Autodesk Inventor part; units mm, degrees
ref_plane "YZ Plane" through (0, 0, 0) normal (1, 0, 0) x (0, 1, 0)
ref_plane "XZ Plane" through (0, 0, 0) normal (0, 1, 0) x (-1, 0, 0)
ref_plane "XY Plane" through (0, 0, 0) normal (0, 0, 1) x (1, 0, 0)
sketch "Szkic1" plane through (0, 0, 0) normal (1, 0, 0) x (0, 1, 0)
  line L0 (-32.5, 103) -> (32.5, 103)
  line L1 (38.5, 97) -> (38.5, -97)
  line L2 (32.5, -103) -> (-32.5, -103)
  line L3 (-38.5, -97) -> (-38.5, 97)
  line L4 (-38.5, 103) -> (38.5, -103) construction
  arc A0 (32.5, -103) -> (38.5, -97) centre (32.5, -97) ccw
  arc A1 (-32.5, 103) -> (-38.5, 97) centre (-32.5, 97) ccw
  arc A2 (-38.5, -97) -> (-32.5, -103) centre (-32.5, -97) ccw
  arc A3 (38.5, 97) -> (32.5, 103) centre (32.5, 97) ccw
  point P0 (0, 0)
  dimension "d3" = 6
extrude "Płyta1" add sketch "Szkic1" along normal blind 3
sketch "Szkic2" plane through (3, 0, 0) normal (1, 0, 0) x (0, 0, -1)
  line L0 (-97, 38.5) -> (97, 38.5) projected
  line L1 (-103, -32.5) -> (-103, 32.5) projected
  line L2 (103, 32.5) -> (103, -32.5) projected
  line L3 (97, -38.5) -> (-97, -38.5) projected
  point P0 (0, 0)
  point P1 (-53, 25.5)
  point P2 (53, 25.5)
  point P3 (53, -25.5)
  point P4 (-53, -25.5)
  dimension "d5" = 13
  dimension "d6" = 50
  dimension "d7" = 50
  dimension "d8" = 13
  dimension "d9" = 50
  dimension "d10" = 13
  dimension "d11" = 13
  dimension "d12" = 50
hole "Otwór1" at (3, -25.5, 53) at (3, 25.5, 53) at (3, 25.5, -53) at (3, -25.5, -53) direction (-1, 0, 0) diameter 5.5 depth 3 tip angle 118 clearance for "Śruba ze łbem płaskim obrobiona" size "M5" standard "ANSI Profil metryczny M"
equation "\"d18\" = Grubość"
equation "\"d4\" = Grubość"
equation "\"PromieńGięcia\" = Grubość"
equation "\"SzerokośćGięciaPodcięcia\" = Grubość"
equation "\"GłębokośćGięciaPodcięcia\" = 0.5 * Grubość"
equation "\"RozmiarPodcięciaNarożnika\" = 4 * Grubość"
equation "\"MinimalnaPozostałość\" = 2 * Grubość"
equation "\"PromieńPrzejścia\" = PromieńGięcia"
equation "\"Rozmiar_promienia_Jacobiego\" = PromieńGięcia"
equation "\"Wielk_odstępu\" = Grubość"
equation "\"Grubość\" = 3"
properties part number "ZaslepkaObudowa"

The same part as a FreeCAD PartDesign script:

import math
import FreeCAD as App
import Part
import Sketcher

V = App.Vector
Q = App.Units.Quantity

doc = App.newDocument("Part")
body = doc.addObject("PartDesign::Body", "Body")

# Sketch on YZ plane
sketch1 = body.newObject("Sketcher::SketchObject", "Sketch")
sketch1.AttachmentSupport = (doc.getObject("YZ_Plane"), [""])
sketch1.MapMode = "FlatFace"
sketch1.addGeometry([
    Part.LineSegment(V(32, 103, 0), V(-32, 103, 0)),  # 0
    Part.ArcOfCircle(Part.Circle(V(-32, 97, 0), V(0, 0, 1), 6), math.radians(90), math.radians(180)),  # 1
    Part.LineSegment(V(-38, 97, 0), V(-38, -97, 0)),  # 2
    Part.ArcOfCircle(Part.Circle(V(-32, -97, 0), V(0, 0, 1), 6), math.radians(180), math.radians(270)),  # 3
    Part.LineSegment(V(-32, -103, 0), V(32, -103, 0)),  # 4
    Part.ArcOfCircle(Part.Circle(V(32, -97, 0), V(0, 0, 1), 6), math.radians(-90), math.radians(0)),  # 5
    Part.LineSegment(V(38, -97, 0), V(38, 97, 0)),  # 6
    Part.ArcOfCircle(Part.Circle(V(32, 97, 0), V(0, 0, 1), 6), math.radians(0), math.radians(90)),  # 7
], False)
sketch1.addConstraint([
    Sketcher.Constraint("Tangent", 0, 2, 1, 1),
    Sketcher.Constraint("Tangent", 1, 2, 2, 1),
    Sketcher.Constraint("Tangent", 2, 2, 3, 1),
    Sketcher.Constraint("Tangent", 3, 2, 4, 1),
    Sketcher.Constraint("Tangent", 4, 2, 5, 1),
    Sketcher.Constraint("Tangent", 5, 2, 6, 1),
    Sketcher.Constraint("Tangent", 6, 2, 7, 1),
    Sketcher.Constraint("Tangent", 7, 2, 0, 1),
    Sketcher.Constraint("Horizontal", 0),
    Sketcher.Constraint("Vertical", 2),
    Sketcher.Constraint("Horizontal", 4),
    Sketcher.Constraint("Vertical", 6),
    Sketcher.Constraint("Equal", 1, 3),
    Sketcher.Constraint("Equal", 3, 5),
    Sketcher.Constraint("Equal", 5, 7),
    Sketcher.Constraint("Symmetric", 1, 3, 5, 3, -1, 1),
    Sketcher.Constraint("Radius", 1, Q("6 mm")),
    Sketcher.Constraint("DistanceX", 0, 2, 0, 1, Q("65 mm")),
    Sketcher.Constraint("DistanceY", 2, 2, 2, 1, Q("194 mm")),
])
pad1 = body.newObject("PartDesign::Pad", "Pad")
pad1.Profile = sketch1
pad1.Length = 3

# Sketch on YZ plane
sketch2 = body.newObject("Sketcher::SketchObject", "Sketch001")
sketch2.AttachmentSupport = (doc.getObject("YZ_Plane"), [""])
sketch2.MapMode = "FlatFace"
sketch2.AttachmentOffset = App.Placement(V(0, 0, 3), App.Rotation())
sketch2.addGeometry([
    Part.Circle(V(-25.5, 53, 0), V(0, 0, 1), 2.8),
    Part.Circle(V(25.5, 53, 0), V(0, 0, 1), 2.8),
    Part.Circle(V(25.5, -53, 0), V(0, 0, 1), 2.8),
    Part.Circle(V(-25.5, -53, 0), V(0, 0, 1), 2.8),
], False)
sketch2.addConstraint([
    Sketcher.Constraint("Equal", 0, 1),
    Sketcher.Constraint("Equal", 1, 2),
    Sketcher.Constraint("Equal", 2, 3),
    Sketcher.Constraint("Symmetric", 0, 3, 2, 3, -1, 1),
    Sketcher.Constraint("Symmetric", 1, 3, 3, 3, -1, 1),
    Sketcher.Constraint("Symmetric", 0, 3, 1, 3, -2),
    Sketcher.Constraint("Diameter", 0, Q("5.5 mm")),
    Sketcher.Constraint("DistanceY", -1, 1, 0, 3, Q("53 mm")),
    Sketcher.Constraint("DistanceX", 0, 3, 1, 3, Q("51 mm")),
])
doc.recompute()
hole = body.newObject("PartDesign::Hole", "Hole")
hole.Profile = sketch2
hole.ThreadType = "None"
hole.Diameter = 5.5
hole.DepthType = "Dimension"
hole.Depth = 3
hole.DrillPoint = "Angled"
hole.DrillPointAngle = 118

doc.recompute()
